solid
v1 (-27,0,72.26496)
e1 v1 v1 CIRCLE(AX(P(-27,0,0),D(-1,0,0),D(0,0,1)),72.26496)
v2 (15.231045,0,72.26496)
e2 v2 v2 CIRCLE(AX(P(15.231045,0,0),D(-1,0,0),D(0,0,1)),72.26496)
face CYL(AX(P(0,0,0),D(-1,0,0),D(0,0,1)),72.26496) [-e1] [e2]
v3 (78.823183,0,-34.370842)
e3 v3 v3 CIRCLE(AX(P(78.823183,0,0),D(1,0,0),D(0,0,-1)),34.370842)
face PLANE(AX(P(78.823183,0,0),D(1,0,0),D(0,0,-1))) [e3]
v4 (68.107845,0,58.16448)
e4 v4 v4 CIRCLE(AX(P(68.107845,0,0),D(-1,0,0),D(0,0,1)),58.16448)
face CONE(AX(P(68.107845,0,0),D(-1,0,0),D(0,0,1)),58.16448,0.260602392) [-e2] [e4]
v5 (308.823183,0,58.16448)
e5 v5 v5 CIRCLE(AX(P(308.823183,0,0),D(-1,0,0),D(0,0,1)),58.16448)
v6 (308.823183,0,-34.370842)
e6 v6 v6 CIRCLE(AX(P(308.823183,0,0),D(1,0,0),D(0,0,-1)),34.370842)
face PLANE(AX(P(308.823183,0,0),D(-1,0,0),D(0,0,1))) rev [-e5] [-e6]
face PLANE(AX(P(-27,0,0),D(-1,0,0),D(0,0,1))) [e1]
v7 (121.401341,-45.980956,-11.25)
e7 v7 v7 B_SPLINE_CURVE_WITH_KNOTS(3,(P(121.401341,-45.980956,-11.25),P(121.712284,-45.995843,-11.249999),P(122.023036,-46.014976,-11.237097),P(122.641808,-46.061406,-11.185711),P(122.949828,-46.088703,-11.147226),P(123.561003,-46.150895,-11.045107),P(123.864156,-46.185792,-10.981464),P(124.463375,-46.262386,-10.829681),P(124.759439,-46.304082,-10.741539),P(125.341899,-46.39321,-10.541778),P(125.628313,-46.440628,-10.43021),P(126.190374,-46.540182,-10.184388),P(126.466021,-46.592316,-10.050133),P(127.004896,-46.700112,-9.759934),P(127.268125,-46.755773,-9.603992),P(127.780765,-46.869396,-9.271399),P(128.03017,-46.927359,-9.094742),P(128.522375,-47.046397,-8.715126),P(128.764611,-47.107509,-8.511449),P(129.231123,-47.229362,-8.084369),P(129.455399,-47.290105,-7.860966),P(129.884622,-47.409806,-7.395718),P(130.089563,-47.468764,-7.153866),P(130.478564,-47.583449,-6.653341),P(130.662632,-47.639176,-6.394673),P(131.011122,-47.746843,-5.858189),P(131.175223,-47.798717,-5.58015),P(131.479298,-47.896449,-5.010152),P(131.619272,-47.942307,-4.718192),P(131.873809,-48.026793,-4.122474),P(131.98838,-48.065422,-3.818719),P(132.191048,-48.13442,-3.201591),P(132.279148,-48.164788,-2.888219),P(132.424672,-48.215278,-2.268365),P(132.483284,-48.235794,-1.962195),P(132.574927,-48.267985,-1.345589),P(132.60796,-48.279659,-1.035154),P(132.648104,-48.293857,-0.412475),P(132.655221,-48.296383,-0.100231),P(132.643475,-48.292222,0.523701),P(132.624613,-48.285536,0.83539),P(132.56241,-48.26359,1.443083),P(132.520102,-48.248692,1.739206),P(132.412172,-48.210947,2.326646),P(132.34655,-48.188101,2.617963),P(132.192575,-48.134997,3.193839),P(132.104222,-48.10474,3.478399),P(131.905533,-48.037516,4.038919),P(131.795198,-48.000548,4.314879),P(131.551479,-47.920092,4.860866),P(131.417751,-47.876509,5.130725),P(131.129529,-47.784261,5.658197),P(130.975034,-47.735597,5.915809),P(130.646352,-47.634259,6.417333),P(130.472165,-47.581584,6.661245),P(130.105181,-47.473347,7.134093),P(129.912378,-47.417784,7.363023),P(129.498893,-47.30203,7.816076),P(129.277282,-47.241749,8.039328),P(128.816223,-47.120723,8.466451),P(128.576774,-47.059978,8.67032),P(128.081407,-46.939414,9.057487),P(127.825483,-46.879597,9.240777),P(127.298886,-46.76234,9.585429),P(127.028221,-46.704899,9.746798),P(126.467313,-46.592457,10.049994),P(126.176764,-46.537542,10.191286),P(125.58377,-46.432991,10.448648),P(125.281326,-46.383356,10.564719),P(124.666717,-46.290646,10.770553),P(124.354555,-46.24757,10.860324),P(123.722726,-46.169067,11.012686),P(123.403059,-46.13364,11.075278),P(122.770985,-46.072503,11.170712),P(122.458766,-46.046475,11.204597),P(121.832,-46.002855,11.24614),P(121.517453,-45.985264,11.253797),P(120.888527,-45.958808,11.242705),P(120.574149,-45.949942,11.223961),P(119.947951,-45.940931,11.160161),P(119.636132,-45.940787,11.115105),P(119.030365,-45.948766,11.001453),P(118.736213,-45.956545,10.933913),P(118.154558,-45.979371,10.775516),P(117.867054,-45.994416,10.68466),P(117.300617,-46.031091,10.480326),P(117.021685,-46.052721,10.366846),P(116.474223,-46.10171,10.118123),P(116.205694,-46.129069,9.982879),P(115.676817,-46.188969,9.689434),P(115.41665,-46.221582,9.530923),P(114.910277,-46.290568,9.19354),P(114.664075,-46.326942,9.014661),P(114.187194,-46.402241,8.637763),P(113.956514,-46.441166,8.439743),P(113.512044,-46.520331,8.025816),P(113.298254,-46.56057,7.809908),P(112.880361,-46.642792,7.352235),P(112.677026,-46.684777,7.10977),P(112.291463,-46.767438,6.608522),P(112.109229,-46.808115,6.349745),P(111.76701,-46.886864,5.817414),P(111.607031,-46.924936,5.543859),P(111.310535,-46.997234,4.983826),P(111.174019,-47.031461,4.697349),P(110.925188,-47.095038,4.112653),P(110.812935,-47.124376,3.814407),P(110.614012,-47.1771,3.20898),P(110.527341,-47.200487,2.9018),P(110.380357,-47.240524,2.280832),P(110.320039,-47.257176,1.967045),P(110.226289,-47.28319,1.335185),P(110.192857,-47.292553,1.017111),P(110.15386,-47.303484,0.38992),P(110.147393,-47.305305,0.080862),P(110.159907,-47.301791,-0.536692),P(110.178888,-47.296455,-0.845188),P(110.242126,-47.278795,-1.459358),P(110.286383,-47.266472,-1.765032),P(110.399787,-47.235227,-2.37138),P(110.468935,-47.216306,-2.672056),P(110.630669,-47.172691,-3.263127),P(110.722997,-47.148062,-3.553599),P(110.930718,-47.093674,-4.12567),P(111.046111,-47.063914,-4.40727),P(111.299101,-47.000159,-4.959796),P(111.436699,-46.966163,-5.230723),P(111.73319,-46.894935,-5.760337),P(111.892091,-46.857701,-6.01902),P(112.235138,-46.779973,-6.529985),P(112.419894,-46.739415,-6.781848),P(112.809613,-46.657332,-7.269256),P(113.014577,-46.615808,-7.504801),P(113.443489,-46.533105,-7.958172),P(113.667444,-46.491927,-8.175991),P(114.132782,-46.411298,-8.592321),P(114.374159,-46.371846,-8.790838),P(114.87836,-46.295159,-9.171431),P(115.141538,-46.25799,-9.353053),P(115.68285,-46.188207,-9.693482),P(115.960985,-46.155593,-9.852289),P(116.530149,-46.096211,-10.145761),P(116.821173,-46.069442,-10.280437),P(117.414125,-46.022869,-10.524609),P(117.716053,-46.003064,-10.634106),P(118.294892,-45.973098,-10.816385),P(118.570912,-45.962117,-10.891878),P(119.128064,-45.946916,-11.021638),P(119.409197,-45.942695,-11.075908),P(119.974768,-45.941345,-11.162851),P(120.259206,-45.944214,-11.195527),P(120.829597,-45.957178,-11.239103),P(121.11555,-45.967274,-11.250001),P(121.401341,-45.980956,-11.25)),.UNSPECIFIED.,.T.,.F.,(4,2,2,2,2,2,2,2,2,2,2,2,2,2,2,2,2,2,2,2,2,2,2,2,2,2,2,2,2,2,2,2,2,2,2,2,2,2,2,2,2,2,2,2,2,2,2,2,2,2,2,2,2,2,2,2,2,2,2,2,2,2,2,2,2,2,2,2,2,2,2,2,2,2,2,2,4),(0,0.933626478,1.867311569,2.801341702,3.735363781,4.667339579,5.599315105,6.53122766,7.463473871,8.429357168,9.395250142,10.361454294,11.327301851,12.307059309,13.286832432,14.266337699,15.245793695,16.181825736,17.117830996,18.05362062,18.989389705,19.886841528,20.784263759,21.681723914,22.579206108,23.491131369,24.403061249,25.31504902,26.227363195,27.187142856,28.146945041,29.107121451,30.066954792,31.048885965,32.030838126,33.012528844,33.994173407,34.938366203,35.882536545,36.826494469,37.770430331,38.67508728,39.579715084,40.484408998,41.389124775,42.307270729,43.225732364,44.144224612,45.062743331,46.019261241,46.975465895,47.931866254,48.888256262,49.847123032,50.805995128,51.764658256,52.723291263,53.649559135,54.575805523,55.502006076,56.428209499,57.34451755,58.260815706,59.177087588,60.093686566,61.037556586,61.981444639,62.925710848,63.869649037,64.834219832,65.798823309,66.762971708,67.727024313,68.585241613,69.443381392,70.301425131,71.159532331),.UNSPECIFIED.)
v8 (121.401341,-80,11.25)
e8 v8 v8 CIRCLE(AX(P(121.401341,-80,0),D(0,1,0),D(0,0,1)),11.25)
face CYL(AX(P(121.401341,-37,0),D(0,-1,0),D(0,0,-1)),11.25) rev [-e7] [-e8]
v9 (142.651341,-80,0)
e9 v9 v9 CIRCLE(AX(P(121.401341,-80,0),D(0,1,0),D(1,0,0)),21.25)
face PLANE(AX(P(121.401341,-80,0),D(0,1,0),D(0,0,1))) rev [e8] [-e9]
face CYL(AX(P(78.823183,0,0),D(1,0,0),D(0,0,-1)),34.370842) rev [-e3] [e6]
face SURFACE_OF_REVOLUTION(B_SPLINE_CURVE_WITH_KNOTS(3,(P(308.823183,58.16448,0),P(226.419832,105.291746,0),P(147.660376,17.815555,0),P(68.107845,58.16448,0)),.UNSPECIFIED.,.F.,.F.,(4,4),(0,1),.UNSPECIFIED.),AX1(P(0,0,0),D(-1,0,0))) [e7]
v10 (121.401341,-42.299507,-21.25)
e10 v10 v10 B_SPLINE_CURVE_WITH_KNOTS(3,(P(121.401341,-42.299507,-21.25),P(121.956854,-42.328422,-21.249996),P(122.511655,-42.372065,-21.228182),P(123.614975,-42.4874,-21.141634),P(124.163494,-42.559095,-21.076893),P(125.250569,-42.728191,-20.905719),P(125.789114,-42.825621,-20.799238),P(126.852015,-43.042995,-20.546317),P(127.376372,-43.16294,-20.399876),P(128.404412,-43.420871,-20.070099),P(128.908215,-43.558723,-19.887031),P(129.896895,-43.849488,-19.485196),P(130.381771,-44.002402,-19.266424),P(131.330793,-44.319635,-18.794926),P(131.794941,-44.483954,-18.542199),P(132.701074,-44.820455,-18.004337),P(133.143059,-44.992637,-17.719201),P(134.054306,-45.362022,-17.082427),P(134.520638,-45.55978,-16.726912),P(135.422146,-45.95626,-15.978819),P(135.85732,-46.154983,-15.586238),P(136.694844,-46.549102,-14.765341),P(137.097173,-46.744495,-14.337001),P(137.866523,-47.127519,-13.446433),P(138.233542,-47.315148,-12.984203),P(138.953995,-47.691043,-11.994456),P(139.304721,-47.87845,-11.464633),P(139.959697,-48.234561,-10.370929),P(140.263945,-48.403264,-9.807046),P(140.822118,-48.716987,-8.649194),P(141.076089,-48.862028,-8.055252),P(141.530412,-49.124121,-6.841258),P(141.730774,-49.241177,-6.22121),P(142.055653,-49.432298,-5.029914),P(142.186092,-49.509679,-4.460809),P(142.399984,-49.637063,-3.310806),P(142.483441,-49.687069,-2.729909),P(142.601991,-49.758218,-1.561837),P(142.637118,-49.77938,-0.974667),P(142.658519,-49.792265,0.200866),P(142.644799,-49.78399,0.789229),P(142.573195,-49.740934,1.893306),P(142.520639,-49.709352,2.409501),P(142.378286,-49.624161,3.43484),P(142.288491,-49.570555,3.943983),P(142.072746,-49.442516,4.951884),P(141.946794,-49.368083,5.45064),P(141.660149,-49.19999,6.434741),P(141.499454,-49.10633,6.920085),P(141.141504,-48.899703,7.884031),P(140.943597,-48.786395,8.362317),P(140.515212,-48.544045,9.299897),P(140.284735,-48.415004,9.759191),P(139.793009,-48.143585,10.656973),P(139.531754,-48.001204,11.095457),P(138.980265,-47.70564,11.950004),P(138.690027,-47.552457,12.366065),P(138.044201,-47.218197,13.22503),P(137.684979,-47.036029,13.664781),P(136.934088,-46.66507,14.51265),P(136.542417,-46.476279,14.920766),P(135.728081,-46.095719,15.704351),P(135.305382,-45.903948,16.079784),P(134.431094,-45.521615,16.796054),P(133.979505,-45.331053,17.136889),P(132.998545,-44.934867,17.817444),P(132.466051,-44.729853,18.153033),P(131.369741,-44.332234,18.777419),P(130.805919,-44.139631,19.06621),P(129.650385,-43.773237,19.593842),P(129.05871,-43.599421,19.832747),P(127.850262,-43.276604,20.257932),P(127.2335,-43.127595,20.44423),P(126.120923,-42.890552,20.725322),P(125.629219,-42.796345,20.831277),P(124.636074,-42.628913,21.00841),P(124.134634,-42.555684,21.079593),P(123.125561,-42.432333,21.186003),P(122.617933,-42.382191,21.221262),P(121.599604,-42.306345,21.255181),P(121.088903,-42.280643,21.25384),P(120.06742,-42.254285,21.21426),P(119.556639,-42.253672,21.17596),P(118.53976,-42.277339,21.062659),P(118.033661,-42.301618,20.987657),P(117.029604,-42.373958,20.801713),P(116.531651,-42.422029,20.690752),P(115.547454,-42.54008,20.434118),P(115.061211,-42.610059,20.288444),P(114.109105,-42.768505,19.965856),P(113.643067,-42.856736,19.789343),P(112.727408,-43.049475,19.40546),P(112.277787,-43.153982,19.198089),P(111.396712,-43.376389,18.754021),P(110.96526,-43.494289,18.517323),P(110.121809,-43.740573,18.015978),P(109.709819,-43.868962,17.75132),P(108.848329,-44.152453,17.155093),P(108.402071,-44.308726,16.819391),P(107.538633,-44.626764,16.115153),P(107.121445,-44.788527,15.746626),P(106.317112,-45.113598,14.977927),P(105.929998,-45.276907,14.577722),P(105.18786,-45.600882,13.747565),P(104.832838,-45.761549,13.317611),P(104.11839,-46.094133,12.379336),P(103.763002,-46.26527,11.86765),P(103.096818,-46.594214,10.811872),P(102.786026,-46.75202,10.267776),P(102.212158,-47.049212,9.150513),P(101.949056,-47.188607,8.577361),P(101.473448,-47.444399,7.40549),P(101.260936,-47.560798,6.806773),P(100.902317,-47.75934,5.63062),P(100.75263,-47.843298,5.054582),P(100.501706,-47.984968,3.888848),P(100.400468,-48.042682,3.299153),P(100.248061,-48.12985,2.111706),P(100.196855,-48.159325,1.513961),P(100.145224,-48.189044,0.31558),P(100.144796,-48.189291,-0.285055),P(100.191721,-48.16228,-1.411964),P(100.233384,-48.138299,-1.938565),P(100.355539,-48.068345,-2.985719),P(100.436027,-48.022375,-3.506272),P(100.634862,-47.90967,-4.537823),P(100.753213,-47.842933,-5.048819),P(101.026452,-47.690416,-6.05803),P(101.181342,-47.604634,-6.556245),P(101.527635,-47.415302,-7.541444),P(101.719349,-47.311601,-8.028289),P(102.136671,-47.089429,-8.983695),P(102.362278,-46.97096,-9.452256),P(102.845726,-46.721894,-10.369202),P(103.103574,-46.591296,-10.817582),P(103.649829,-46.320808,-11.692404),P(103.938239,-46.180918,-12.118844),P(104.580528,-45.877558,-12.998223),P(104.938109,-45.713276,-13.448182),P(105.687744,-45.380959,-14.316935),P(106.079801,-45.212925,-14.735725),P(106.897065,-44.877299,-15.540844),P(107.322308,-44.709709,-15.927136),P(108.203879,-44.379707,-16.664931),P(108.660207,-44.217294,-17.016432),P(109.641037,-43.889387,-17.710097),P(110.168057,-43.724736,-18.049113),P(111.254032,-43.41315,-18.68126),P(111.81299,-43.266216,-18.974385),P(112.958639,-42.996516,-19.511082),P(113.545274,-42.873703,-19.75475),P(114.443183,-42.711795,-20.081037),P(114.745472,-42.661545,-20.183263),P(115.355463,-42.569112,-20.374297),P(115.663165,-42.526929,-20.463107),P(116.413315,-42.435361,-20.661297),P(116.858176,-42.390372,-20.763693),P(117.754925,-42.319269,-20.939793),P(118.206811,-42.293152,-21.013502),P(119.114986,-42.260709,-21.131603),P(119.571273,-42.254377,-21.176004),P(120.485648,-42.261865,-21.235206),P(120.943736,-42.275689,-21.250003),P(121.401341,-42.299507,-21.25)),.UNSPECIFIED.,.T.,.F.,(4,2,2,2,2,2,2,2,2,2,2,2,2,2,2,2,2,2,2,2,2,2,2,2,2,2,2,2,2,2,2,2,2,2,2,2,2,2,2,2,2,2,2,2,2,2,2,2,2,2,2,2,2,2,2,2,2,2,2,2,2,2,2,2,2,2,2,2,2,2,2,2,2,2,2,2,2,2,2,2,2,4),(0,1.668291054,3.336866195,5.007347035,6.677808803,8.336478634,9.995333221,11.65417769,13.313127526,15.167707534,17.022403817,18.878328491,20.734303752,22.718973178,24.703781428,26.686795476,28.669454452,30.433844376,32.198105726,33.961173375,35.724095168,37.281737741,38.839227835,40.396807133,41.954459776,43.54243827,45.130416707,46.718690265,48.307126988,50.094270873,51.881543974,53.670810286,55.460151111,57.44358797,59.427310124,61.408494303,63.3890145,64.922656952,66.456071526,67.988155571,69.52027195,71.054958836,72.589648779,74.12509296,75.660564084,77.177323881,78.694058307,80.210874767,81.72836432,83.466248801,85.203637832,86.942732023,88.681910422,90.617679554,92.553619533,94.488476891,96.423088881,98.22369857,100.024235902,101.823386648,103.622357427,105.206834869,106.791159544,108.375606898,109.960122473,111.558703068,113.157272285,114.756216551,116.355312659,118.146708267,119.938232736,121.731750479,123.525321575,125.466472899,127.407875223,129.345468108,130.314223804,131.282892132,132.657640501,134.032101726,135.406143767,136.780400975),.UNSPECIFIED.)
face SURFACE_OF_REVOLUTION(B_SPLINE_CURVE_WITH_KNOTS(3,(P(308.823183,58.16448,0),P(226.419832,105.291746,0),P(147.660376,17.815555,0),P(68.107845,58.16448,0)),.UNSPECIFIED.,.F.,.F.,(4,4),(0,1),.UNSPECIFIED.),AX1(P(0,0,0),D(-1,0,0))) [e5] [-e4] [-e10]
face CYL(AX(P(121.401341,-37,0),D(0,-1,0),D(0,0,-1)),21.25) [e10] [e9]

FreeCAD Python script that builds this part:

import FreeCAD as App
import Part
import Sketcher
from FreeCAD import Vector
Q = App.Units.Quantity

doc = App.newDocument("Part")
params = doc.addObject("Spreadsheet::Sheet", "Params")
for row, (alias, value) in enumerate([
    ("revolution_angle", "360 deg"),
    ("pocket1_length", "230 mm"),
    ("sketch3_diameter", "42.5 mm"),
    ("sketch3_diameter2", "22.5 mm"),
    ("pad1_length", "33 mm"),
    ("pad1_length2", "10 mm"),
    ("pad2_length", "27 mm"),
], start=1):
    params.set(f"A{row}", alias)
    params.set(f"B{row}", "=" + value)
    params.setAlias(f"B{row}", alias)

body = doc.addObject("PartDesign::Body", "Body")

sketch1 = body.newObject("Sketcher::SketchObject", "Sketch")
sketch1.AttachmentSupport = (doc.getObject("XY_Plane"), [""])
sketch1.MapMode = "FlatFace"
sketch1.addGeometry([
    Part.LineSegment(Vector(0, 72.26496, 0), Vector(0, 0, 0)),
    Part.LineSegment(Vector(0, 0, 0), Vector(308.823183, 0, 0)),
    Part.LineSegment(Vector(308.823183, 0, 0), Vector(308.823183, 58.16448, 0)),
    Part.BSplineCurve([Vector(68.107845, 58.16448, 0), Vector(147.660376, 17.815555, 0), Vector(226.419832, 105.291746, 0), Vector(308.823183, 58.16448, 0)], [4, 4], [0, 1], False, 3, [1, 1, 1, 1], False),
    Part.LineSegment(Vector(68.107845, 58.16448, 0), Vector(15.231045, 72.26496, 0)),
    Part.LineSegment(Vector(15.231045, 72.26496, 0), Vector(0, 72.26496, 0)),
], False)
sketch1.addConstraint([
    Sketcher.Constraint("Block", 3),
    Sketcher.Constraint("Coincident", 0, 2, 1, 1),
    Sketcher.Constraint("Coincident", 1, 2, 2, 1),
    Sketcher.Constraint("Coincident", 2, 2, 3, 2),
    Sketcher.Constraint("Coincident", 3, 1, 4, 1),
    Sketcher.Constraint("Coincident", 4, 2, 5, 1),
    Sketcher.Constraint("Coincident", 5, 2, 0, 1),
    Sketcher.Constraint("Vertical", 0),
    Sketcher.Constraint("Horizontal", 1),
    Sketcher.Constraint("Vertical", 2),
    Sketcher.Constraint("Horizontal", 5),
    Sketcher.Constraint("Coincident", 0, 2, -1, 1),
    Sketcher.Constraint("DistanceY", 0, 2, 0, 1, Q("72.26496 mm")),
    Sketcher.Constraint("Distance", 4, Q("54.724579 mm")),
])
revolution = body.newObject("PartDesign::Revolution", "Revolution")
revolution.Profile = sketch1
revolution.ReferenceAxis = (sketch1, ["H_Axis"])
revolution.setExpression("Angle", "Params.revolution_angle")

sketch2 = body.newObject("Sketcher::SketchObject", "Sketch001")
sketch2.AttachmentSupport = (doc.getObject("YZ_Plane"), [""])
sketch2.MapMode = "FlatFace"
sketch2.AttachmentOffset = App.Placement(Vector(0, 0, 308.823183), App.Rotation())
sketch2.addGeometry(Part.Circle(Vector(0, 0, 0), Vector(0, 0, 1), 34), False)
sketch2.addConstraint([
    Sketcher.Constraint("Coincident", 0, 3, -1, 1),
    Sketcher.Constraint("Diameter", 0, Q("68.741683 mm")),
])
pocket1 = body.newObject("PartDesign::Pocket", "Pocket")
pocket1.Profile = sketch2
pocket1.setExpression("Length", "Params.pocket1_length")

sketch3 = body.newObject("Sketcher::SketchObject", "Sketch002")
sketch3.AttachmentSupport = (doc.getObject("XZ_Plane"), [""])
sketch3.MapMode = "FlatFace"
sketch3.AttachmentOffset = App.Placement(Vector(0, 0, 70), App.Rotation())
sketch3.addGeometry([
    Part.Circle(Vector(121, 0, 0), Vector(0, 0, 1), 21),
    Part.Circle(Vector(121, 0, 0), Vector(0, 0, 1), 11),
], False)
sketch3.addConstraint([
    Sketcher.Constraint("Coincident", 1, 3, 0, 3),
    Sketcher.Constraint("PointOnObject", 0, 3, -1),
    Sketcher.Constraint("Diameter", 0, Q("42.5 mm")),
    Sketcher.Constraint("Diameter", 1, Q("22.5 mm")),
    Sketcher.Constraint("DistanceX", -1, 1, 0, 3, Q("121.401341 mm")),
])
sketch3.setExpression("Constraints[2]", "Params.sketch3_diameter")
sketch3.setExpression("Constraints[3]", "Params.sketch3_diameter2")
pad1 = body.newObject("PartDesign::Pad", "Pad")
pad1.Profile = sketch3
pad1.Type = "TwoLengths"
pad1.setExpression("Length", "Params.pad1_length")
pad1.setExpression("Length2", "Params.pad1_length2")
pad1.Reversed = True

sketch4 = body.newObject("Sketcher::SketchObject", "Sketch003")
sketch4.AttachmentSupport = (doc.getObject("YZ_Plane"), [""])
sketch4.MapMode = "FlatFace"
sketch4.addGeometry(Part.Circle(Vector(0, 0, 0), Vector(0, 0, 1), 72), False)
sketch4.addConstraint([
    Sketcher.Constraint("Coincident", 0, 3, -1, 1),
    Sketcher.Constraint("Diameter", 0, Q("144.52992 mm")),
])
pad2 = body.newObject("PartDesign::Pad", "Pad001")
pad2.Profile = sketch4
pad2.setExpression("Length", "Params.pad2_length")
pad2.Reversed = True

doc.recompute()
